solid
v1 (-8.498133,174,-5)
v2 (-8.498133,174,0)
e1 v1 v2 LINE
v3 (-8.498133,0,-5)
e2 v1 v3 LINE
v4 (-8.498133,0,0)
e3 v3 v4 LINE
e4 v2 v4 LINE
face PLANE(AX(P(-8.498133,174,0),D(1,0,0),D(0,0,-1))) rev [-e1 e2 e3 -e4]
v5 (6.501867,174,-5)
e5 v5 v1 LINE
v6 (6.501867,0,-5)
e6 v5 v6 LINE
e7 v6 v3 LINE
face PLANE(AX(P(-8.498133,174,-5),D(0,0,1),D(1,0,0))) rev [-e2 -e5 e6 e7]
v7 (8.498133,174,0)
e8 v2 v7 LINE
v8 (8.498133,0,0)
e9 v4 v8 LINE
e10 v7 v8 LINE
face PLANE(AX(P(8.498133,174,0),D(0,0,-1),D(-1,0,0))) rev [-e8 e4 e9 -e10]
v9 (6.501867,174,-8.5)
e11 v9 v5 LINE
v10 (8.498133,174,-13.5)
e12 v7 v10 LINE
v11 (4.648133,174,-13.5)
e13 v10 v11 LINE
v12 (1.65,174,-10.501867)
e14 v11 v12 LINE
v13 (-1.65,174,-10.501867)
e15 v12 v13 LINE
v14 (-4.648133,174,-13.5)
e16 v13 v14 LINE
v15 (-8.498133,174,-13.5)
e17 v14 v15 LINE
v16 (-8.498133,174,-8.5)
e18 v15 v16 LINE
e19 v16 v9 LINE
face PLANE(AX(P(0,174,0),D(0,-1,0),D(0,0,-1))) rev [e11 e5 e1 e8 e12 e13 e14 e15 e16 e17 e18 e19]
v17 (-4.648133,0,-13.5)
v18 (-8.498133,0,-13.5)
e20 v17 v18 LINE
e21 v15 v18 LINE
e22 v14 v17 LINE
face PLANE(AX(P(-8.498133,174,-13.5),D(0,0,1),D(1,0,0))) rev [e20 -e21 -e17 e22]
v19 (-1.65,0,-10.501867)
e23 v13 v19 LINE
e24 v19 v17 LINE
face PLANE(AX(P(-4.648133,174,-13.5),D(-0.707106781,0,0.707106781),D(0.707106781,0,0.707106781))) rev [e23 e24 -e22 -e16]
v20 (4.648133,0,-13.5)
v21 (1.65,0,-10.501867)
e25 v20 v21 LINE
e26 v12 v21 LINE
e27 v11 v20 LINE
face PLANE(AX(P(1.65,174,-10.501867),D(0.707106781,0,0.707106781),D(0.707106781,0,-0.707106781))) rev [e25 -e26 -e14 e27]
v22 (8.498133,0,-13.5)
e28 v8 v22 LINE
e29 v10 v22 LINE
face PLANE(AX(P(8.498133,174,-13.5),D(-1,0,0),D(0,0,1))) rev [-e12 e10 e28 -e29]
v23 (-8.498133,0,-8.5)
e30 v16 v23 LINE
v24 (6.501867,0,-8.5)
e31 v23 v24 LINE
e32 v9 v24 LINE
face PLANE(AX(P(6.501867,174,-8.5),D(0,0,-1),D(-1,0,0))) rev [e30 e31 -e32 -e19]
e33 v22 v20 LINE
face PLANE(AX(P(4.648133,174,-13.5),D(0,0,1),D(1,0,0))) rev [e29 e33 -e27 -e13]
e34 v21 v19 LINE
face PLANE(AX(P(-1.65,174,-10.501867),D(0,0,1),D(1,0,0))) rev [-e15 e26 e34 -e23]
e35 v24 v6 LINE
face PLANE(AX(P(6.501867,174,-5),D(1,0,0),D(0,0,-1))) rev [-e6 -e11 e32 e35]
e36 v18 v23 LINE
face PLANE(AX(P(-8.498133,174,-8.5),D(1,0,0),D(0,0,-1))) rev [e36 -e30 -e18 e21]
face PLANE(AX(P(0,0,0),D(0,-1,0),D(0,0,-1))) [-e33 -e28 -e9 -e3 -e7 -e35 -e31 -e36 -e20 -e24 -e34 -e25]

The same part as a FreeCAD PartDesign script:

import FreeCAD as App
import Part
import Sketcher

V = App.Vector
Q = App.Units.Quantity

doc = App.newDocument("Part")
body = doc.addObject("PartDesign::Body", "Body")

# Sketch on XZ plane
sketch1 = doc.addObject("Sketcher::SketchObject", "Sketch")
body.addObject(sketch1)
sketch1.AttachmentSupport = (doc.XZ_Plane, [""])
sketch1.MapMode = "FlatFace"
sketch1.addGeometry([
    Part.LineSegment(V(-4.6, -13.5, 0), V(-8.5, -13.5, 0)),  # 0
    Part.LineSegment(V(-8.5, -13.5, 0), V(-8.5, -8.5, 0)),  # 1
    Part.LineSegment(V(-8.5, -8.5, 0), V(6.5, -8.5, 0)),  # 2
    Part.LineSegment(V(6.5, -8.5, 0), V(6.5, -5, 0)),  # 3
    Part.LineSegment(V(6.5, -5, 0), V(-8.5, -5, 0)),  # 4
    Part.LineSegment(V(-8.5, -5, 0), V(-8.5, 0, 0)),  # 5
    Part.LineSegment(V(-8.5, 0, 0), V(8.5, 0, 0)),  # 6
    Part.LineSegment(V(8.5, 0, 0), V(8.5, -13.5, 0)),  # 7
    Part.LineSegment(V(8.5, -13.5, 0), V(4.6, -13.5, 0)),  # 8
    Part.LineSegment(V(4.6, -13.5, 0), V(1.6, -10.5, 0)),  # 9
    Part.LineSegment(V(1.6, -10.5, 0), V(-1.6, -10.5, 0)),  # 10
    Part.LineSegment(V(-1.6, -10.5, 0), V(-4.6, -13.5, 0)),  # 11
], False)
sketch1.addConstraint([
    Sketcher.Constraint("Coincident", 0, 2, 1, 1),
    Sketcher.Constraint("Coincident", 1, 2, 2, 1),
    Sketcher.Constraint("Coincident", 2, 2, 3, 1),
    Sketcher.Constraint("Coincident", 3, 2, 4, 1),
    Sketcher.Constraint("Coincident", 4, 2, 5, 1),
    Sketcher.Constraint("Coincident", 5, 2, 6, 1),
    Sketcher.Constraint("Coincident", 6, 2, 7, 1),
    Sketcher.Constraint("Coincident", 7, 2, 8, 1),
    Sketcher.Constraint("Coincident", 8, 2, 9, 1),
    Sketcher.Constraint("Coincident", 9, 2, 10, 1),
    Sketcher.Constraint("Coincident", 10, 2, 11, 1),
    Sketcher.Constraint("Coincident", 11, 2, 0, 1),
    Sketcher.Constraint("Horizontal", 0),
    Sketcher.Constraint("Vertical", 1),
    Sketcher.Constraint("Horizontal", 2),
    Sketcher.Constraint("Vertical", 3),
    Sketcher.Constraint("Horizontal", 4),
    Sketcher.Constraint("Vertical", 5),
    Sketcher.Constraint("Horizontal", 6),
    Sketcher.Constraint("Vertical", 7),
    Sketcher.Constraint("Horizontal", 8),
    Sketcher.Constraint("Horizontal", 10),
    Sketcher.Constraint("Symmetric", 5, 2, 6, 2, -1, 1),
    Sketcher.Constraint("Symmetric", 0, 2, 7, 2, -2),
    Sketcher.Constraint("Perpendicular", 9, 11),
    Sketcher.Constraint("Equal", 0, 8),
    Sketcher.Constraint("Equal", 1, 5),
    Sketcher.Constraint("Equal", 9, 11),
    Sketcher.Constraint("DistanceX", 2, 1, 2, 2, Q("15 mm")),
    Sketcher.Constraint("DistanceY", 1, 1, 1, 2, Q("5 mm")),
    Sketcher.Constraint("DistanceX", 10, 2, 10, 1, Q("3.3 mm")),
    Sketcher.Constraint("DistanceY", 3, 1, 3, 2, Q("3.5 mm")),
    Sketcher.Constraint("DistanceX", 0, 2, 0, 1, Q("3.85 mm")),
    Sketcher.Constraint("Distance", 9, Q("4.24 mm")),
])
pad1 = doc.addObject("PartDesign::Pad", "Pad")
body.addObject(pad1)
pad1.Profile = sketch1
pad1.Length = 174
pad1.Reversed = True

doc.recompute()
